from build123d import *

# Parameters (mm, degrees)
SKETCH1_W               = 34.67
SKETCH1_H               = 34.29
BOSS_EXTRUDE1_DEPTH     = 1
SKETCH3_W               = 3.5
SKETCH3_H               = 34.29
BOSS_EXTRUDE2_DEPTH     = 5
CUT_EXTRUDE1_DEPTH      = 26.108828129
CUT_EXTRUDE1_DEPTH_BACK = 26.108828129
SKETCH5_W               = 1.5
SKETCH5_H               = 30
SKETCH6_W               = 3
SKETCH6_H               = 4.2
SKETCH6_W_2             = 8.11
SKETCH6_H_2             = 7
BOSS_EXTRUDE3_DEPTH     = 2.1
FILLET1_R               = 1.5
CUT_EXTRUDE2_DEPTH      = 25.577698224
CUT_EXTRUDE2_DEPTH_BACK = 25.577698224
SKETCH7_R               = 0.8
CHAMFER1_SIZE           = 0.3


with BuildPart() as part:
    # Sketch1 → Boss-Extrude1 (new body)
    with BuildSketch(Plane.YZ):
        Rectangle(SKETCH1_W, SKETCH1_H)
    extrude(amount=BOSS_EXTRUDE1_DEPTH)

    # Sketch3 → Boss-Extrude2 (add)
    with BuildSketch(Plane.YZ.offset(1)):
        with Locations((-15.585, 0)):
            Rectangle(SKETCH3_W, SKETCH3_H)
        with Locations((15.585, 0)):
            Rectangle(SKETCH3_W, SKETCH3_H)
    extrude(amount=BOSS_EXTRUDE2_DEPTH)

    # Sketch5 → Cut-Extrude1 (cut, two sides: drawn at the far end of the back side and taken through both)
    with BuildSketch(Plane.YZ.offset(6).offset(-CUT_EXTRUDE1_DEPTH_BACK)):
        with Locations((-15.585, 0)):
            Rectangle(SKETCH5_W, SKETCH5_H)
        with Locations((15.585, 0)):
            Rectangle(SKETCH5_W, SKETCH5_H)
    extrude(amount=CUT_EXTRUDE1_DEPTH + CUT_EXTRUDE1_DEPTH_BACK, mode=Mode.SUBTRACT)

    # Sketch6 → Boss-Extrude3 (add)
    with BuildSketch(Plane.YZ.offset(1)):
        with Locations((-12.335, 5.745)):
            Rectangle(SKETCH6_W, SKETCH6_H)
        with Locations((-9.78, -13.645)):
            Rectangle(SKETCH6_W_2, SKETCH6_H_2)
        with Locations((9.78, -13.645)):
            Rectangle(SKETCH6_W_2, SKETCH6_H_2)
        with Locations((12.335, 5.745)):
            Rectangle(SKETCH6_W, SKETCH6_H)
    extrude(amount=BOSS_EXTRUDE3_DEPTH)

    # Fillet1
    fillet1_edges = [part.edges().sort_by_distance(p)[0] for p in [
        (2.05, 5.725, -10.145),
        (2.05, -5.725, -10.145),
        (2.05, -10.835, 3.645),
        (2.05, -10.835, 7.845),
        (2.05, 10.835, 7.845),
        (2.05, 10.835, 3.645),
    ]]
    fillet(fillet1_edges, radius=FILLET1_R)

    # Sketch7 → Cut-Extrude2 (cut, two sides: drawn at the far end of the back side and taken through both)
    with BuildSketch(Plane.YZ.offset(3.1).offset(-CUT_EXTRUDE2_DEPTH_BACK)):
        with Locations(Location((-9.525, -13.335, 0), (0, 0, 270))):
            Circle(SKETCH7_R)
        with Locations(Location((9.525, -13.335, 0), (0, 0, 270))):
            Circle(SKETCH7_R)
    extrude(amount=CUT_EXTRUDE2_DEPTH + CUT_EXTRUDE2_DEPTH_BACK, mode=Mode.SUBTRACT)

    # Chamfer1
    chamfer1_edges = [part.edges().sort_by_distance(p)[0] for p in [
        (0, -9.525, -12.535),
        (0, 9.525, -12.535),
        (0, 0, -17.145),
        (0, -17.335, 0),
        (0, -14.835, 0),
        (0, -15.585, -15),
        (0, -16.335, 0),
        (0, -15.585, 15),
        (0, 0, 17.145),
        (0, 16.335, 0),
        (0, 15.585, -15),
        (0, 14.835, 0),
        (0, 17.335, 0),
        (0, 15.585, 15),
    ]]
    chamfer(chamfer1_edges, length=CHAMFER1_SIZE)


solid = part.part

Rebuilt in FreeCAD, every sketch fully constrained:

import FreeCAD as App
import Part
import Sketcher


def edges_at(feature, points):
    """Names of the edges that pass closest to the given points."""
    edges = feature.Shape.Edges
    near = lambda p: min(range(len(edges)), key=lambda i: edges[i].distToShape(Part.Vertex(*p))[0])
    return sorted({f"Edge{near(p) + 1}" for p in points})

doc = App.newDocument("Part")
body = doc.addObject("PartDesign::Body", "Body")

# Sketch on YZ plane
sketch1 = body.newObject("Sketcher::SketchObject", "Sketch")
sketch1.AttachmentSupport = (doc.getObject("YZ_Plane"), [""])
sketch1.MapMode = "FlatFace"
sketch1.addGeometry(Part.LineSegment(App.Vector(-17, 17, 0), App.Vector(-17, -17, 0)), False)
sketch1.addGeometry(Part.LineSegment(App.Vector(-17, -17, 0), App.Vector(17, -17, 0)), False)
sketch1.addGeometry(Part.LineSegment(App.Vector(17, -17, 0), App.Vector(17, 17, 0)), False)
sketch1.addGeometry(Part.LineSegment(App.Vector(17, 17, 0), App.Vector(-17, 17, 0)), False)
sketch1.addConstraint(Sketcher.Constraint("Coincident", 0, 2, 1, 1))
sketch1.addConstraint(Sketcher.Constraint("Coincident", 1, 2, 2, 1))
sketch1.addConstraint(Sketcher.Constraint("Coincident", 2, 2, 3, 1))
sketch1.addConstraint(Sketcher.Constraint("Coincident", 3, 2, 0, 1))
sketch1.addConstraint(Sketcher.Constraint("Vertical", 0))
sketch1.addConstraint(Sketcher.Constraint("Horizontal", 1))
sketch1.addConstraint(Sketcher.Constraint("Vertical", 2))
sketch1.addConstraint(Sketcher.Constraint("Horizontal", 3))
sketch1.addConstraint(Sketcher.Constraint("Symmetric", 0, 2, 2, 2, -1, 1))
sketch1.addConstraint(Sketcher.Constraint("DistanceX", 1, 1, 1, 2, 34.67))
sketch1.addConstraint(Sketcher.Constraint("DistanceY", 0, 2, 0, 1, 34.29))
pad1 = body.newObject("PartDesign::Pad", "Pad")
pad1.Profile = sketch1
pad1.Length = 1

# Sketch on YZ plane
sketch2 = body.newObject("Sketcher::SketchObject", "Sketch001")
sketch2.AttachmentSupport = (doc.getObject("YZ_Plane"), [""])
sketch2.MapMode = "FlatFace"
sketch2.AttachmentOffset = App.Placement(App.Vector(0, 0, 1), App.Rotation())
sketch2.addGeometry(Part.LineSegment(App.Vector(-17.3, 17.1, 0), App.Vector(-17.3, -17.1, 0)), False)
sketch2.addGeometry(Part.LineSegment(App.Vector(-17.3, -17.1, 0), App.Vector(-13.8, -17.1, 0)), False)
sketch2.addGeometry(Part.LineSegment(App.Vector(-13.8, -17.1, 0), App.Vector(-13.8, 17.1, 0)), False)
sketch2.addGeometry(Part.LineSegment(App.Vector(-13.8, 17.1, 0), App.Vector(-17.3, 17.1, 0)), False)
sketch2.addGeometry(Part.LineSegment(App.Vector(13.8, 17.1, 0), App.Vector(13.8, -17.1, 0)), False)
sketch2.addGeometry(Part.LineSegment(App.Vector(13.8, -17.1, 0), App.Vector(17.3, -17.1, 0)), False)
sketch2.addGeometry(Part.LineSegment(App.Vector(17.3, -17.1, 0), App.Vector(17.3, 17.1, 0)), False)
sketch2.addGeometry(Part.LineSegment(App.Vector(17.3, 17.1, 0), App.Vector(13.8, 17.1, 0)), False)
sketch2.addConstraint(Sketcher.Constraint("Coincident", 0, 2, 1, 1))
sketch2.addConstraint(Sketcher.Constraint("Coincident", 1, 2, 2, 1))
sketch2.addConstraint(Sketcher.Constraint("Coincident", 2, 2, 3, 1))
sketch2.addConstraint(Sketcher.Constraint("Coincident", 3, 2, 0, 1))
sketch2.addConstraint(Sketcher.Constraint("Coincident", 4, 2, 5, 1))
sketch2.addConstraint(Sketcher.Constraint("Coincident", 5, 2, 6, 1))
sketch2.addConstraint(Sketcher.Constraint("Coincident", 6, 2, 7, 1))
sketch2.addConstraint(Sketcher.Constraint("Coincident", 7, 2, 4, 1))
sketch2.addConstraint(Sketcher.Constraint("Vertical", 0))
sketch2.addConstraint(Sketcher.Constraint("Horizontal", 1))
sketch2.addConstraint(Sketcher.Constraint("Vertical", 2))
sketch2.addConstraint(Sketcher.Constraint("Horizontal", 3))
sketch2.addConstraint(Sketcher.Constraint("Vertical", 4))
sketch2.addConstraint(Sketcher.Constraint("Horizontal", 5))
sketch2.addConstraint(Sketcher.Constraint("Vertical", 6))
sketch2.addConstraint(Sketcher.Constraint("Horizontal", 7))
sketch2.addConstraint(Sketcher.Constraint("Symmetric", 2, 2, 4, 2, -1, 1))
sketch2.addConstraint(Sketcher.Constraint("Symmetric", 0, 2, 6, 2, -1, 1))
sketch2.addConstraint(Sketcher.Constraint("Horizontal", 1, 2, 4, 2))
sketch2.addConstraint(Sketcher.Constraint("DistanceX", 1, 1, 1, 2, 3.5))
sketch2.addConstraint(Sketcher.Constraint("DistanceY", 0, 2, 0, 1, 34.29))
sketch2.addConstraint(Sketcher.Constraint("DistanceX", 1, 2, 4, 2, 27.67))
pad2 = body.newObject("PartDesign::Pad", "Pad001")
pad2.Profile = sketch2
pad2.Length = 5

# Sketch on YZ plane
sketch3 = body.newObject("Sketcher::SketchObject", "Sketch002")
sketch3.AttachmentSupport = (doc.getObject("YZ_Plane"), [""])
sketch3.MapMode = "FlatFace"
sketch3.AttachmentOffset = App.Placement(App.Vector(0, 0, 6), App.Rotation())
sketch3.addGeometry(Part.LineSegment(App.Vector(-16.3, 15, 0), App.Vector(-16.3, -15, 0)), False)
sketch3.addGeometry(Part.LineSegment(App.Vector(-16.3, -15, 0), App.Vector(-14.8, -15, 0)), False)
sketch3.addGeometry(Part.LineSegment(App.Vector(-14.8, -15, 0), App.Vector(-14.8, 15, 0)), False)
sketch3.addGeometry(Part.LineSegment(App.Vector(-14.8, 15, 0), App.Vector(-16.3, 15, 0)), False)
sketch3.addGeometry(Part.LineSegment(App.Vector(14.8, 15, 0), App.Vector(14.8, -15, 0)), False)
sketch3.addGeometry(Part.LineSegment(App.Vector(14.8, -15, 0), App.Vector(16.3, -15, 0)), False)
sketch3.addGeometry(Part.LineSegment(App.Vector(16.3, -15, 0), App.Vector(16.3, 15, 0)), False)
sketch3.addGeometry(Part.LineSegment(App.Vector(16.3, 15, 0), App.Vector(14.8, 15, 0)), False)
sketch3.addConstraint(Sketcher.Constraint("Coincident", 0, 2, 1, 1))
sketch3.addConstraint(Sketcher.Constraint("Coincident", 1, 2, 2, 1))
sketch3.addConstraint(Sketcher.Constraint("Coincident", 2, 2, 3, 1))
sketch3.addConstraint(Sketcher.Constraint("Coincident", 3, 2, 0, 1))
sketch3.addConstraint(Sketcher.Constraint("Coincident", 4, 2, 5, 1))
sketch3.addConstraint(Sketcher.Constraint("Coincident", 5, 2, 6, 1))
sketch3.addConstraint(Sketcher.Constraint("Coincident", 6, 2, 7, 1))
sketch3.addConstraint(Sketcher.Constraint("Coincident", 7, 2, 4, 1))
sketch3.addConstraint(Sketcher.Constraint("Vertical", 0))
sketch3.addConstraint(Sketcher.Constraint("Horizontal", 1))
sketch3.addConstraint(Sketcher.Constraint("Vertical", 2))
sketch3.addConstraint(Sketcher.Constraint("Horizontal", 3))
sketch3.addConstraint(Sketcher.Constraint("Vertical", 4))
sketch3.addConstraint(Sketcher.Constraint("Horizontal", 5))
sketch3.addConstraint(Sketcher.Constraint("Vertical", 6))
sketch3.addConstraint(Sketcher.Constraint("Horizontal", 7))
sketch3.addConstraint(Sketcher.Constraint("Symmetric", 2, 2, 4, 2, -1, 1))
sketch3.addConstraint(Sketcher.Constraint("Symmetric", 0, 2, 6, 2, -1, 1))
sketch3.addConstraint(Sketcher.Constraint("Horizontal", 1, 2, 4, 2))
sketch3.addConstraint(Sketcher.Constraint("DistanceY", 0, 2, 0, 1, 30.0))
sketch3.addConstraint(Sketcher.Constraint("DistanceX", 1, 1, 1, 2, 1.5))
sketch3.addConstraint(Sketcher.Constraint("DistanceX", 1, 2, 4, 2, 29.67))
pocket1 = body.newObject("PartDesign::Pocket", "Pocket")
pocket1.Profile = sketch3
pocket1.Type = "ThroughAll"
pocket1.Midplane = True

# Sketch on YZ plane
sketch4 = body.newObject("Sketcher::SketchObject", "Sketch003")
sketch4.AttachmentSupport = (doc.getObject("YZ_Plane"), [""])
sketch4.MapMode = "FlatFace"
sketch4.AttachmentOffset = App.Placement(App.Vector(0, 0, 1), App.Rotation())
sketch4.addGeometry(Part.LineSegment(App.Vector(-13.8, 7.8, 0), App.Vector(-13.8, 3.6, 0)), False)
sketch4.addGeometry(Part.LineSegment(App.Vector(-13.8, 3.6, 0), App.Vector(-10.8, 3.6, 0)), False)
sketch4.addGeometry(Part.LineSegment(App.Vector(-10.8, 3.6, 0), App.Vector(-10.8, 7.8, 0)), False)
sketch4.addGeometry(Part.LineSegment(App.Vector(-10.8, 7.8, 0), App.Vector(-13.8, 7.8, 0)), False)
sketch4.addGeometry(Part.LineSegment(App.Vector(-13.8, -10.1, 0), App.Vector(-13.8, -17.1, 0)), False)
sketch4.addGeometry(Part.LineSegment(App.Vector(-13.8, -17.1, 0), App.Vector(-5.7, -17.1, 0)), False)
sketch4.addGeometry(Part.LineSegment(App.Vector(-5.7, -17.1, 0), App.Vector(-5.7, -10.1, 0)), False)
sketch4.addGeometry(Part.LineSegment(App.Vector(-5.7, -10.1, 0), App.Vector(-13.8, -10.1, 0)), False)
sketch4.addGeometry(Part.LineSegment(App.Vector(5.7, -10.1, 0), App.Vector(5.7, -17.1, 0)), False)
sketch4.addGeometry(Part.LineSegment(App.Vector(5.7, -17.1, 0), App.Vector(13.8, -17.1, 0)), False)
sketch4.addGeometry(Part.LineSegment(App.Vector(13.8, -17.1, 0), App.Vector(13.8, -10.1, 0)), False)
sketch4.addGeometry(Part.LineSegment(App.Vector(13.8, -10.1, 0), App.Vector(5.7, -10.1, 0)), False)
sketch4.addGeometry(Part.LineSegment(App.Vector(10.8, 7.8, 0), App.Vector(10.8, 3.6, 0)), False)
sketch4.addGeometry(Part.LineSegment(App.Vector(10.8, 3.6, 0), App.Vector(13.8, 3.6, 0)), False)
sketch4.addGeometry(Part.LineSegment(App.Vector(13.8, 3.6, 0), App.Vector(13.8, 7.8, 0)), False)
sketch4.addGeometry(Part.LineSegment(App.Vector(13.8, 7.8, 0), App.Vector(10.8, 7.8, 0)), False)
sketch4.addConstraint(Sketcher.Constraint("Coincident", 0, 2, 1, 1))
sketch4.addConstraint(Sketcher.Constraint("Coincident", 1, 2, 2, 1))
sketch4.addConstraint(Sketcher.Constraint("Coincident", 2, 2, 3, 1))
sketch4.addConstraint(Sketcher.Constraint("Coincident", 3, 2, 0, 1))
sketch4.addConstraint(Sketcher.Constraint("Coincident", 4, 2, 5, 1))
sketch4.addConstraint(Sketcher.Constraint("Coincident", 5, 2, 6, 1))
sketch4.addConstraint(Sketcher.Constraint("Coincident", 6, 2, 7, 1))
sketch4.addConstraint(Sketcher.Constraint("Coincident", 7, 2, 4, 1))
sketch4.addConstraint(Sketcher.Constraint("Coincident", 8, 2, 9, 1))
sketch4.addConstraint(Sketcher.Constraint("Coincident", 9, 2, 10, 1))
sketch4.addConstraint(Sketcher.Constraint("Coincident", 10, 2, 11, 1))
sketch4.addConstraint(Sketcher.Constraint("Coincident", 11, 2, 8, 1))
sketch4.addConstraint(Sketcher.Constraint("Coincident", 12, 2, 13, 1))
sketch4.addConstraint(Sketcher.Constraint("Coincident", 13, 2, 14, 1))
sketch4.addConstraint(Sketcher.Constraint("Coincident", 14, 2, 15, 1))
sketch4.addConstraint(Sketcher.Constraint("Coincident", 15, 2, 12, 1))
sketch4.addConstraint(Sketcher.Constraint("Vertical", 0))
sketch4.addConstraint(Sketcher.Constraint("Horizontal", 1))
sketch4.addConstraint(Sketcher.Constraint("Vertical", 2))
sketch4.addConstraint(Sketcher.Constraint("Horizontal", 3))
sketch4.addConstraint(Sketcher.Constraint("Vertical", 4))
sketch4.addConstraint(Sketcher.Constraint("Horizontal", 5))
sketch4.addConstraint(Sketcher.Constraint("Vertical", 6))
sketch4.addConstraint(Sketcher.Constraint("Horizontal", 7))
sketch4.addConstraint(Sketcher.Constraint("Vertical", 8))
sketch4.addConstraint(Sketcher.Constraint("Horizontal", 9))
sketch4.addConstraint(Sketcher.Constraint("Vertical", 10))
sketch4.addConstraint(Sketcher.Constraint("Horizontal", 11))
sketch4.addConstraint(Sketcher.Constraint("Vertical", 12))
sketch4.addConstraint(Sketcher.Constraint("Horizontal", 13))
sketch4.addConstraint(Sketcher.Constraint("Vertical", 14))
sketch4.addConstraint(Sketcher.Constraint("Horizontal", 15))
sketch4.addConstraint(Sketcher.Constraint("Symmetric", 5, 2, 8, 2, -2))
sketch4.addConstraint(Sketcher.Constraint("Symmetric", 7, 2, 10, 2, -2))
sketch4.addConstraint(Sketcher.Constraint("Symmetric", 1, 2, 12, 2, -2))
sketch4.addConstraint(Sketcher.Constraint("Symmetric", 3, 2, 14, 2, -2))
sketch4.addConstraint(Sketcher.Constraint("Vertical", 3, 2, 4, 2))
sketch4.addConstraint(Sketcher.Constraint("DistanceX", 1, 1, 1, 2, 3.0))
sketch4.addConstraint(Sketcher.Constraint("DistanceY", 4, 2, 4, 1, 7.0))
sketch4.addConstraint(Sketcher.Constraint("DistanceY", 0, 2, 0, 1, 4.2))
sketch4.addConstraint(Sketcher.Constraint("DistanceX", 5, 1, 5, 2, 8.11))
sketch4.addConstraint(Sketcher.Constraint("DistanceY", 4, 2, 0, 2, 20.79))
sketch4.addConstraint(Sketcher.Constraint("DistanceX", 5, 2, 8, 2, 11.45))
sketch4.addConstraint(Sketcher.Constraint("DistanceY", -1, 1, 0, 2, 3.645))
pad3 = body.newObject("PartDesign::Pad", "Pad002")
pad3.Profile = sketch4
pad3.Length = 2.1
doc.recompute()

fillet = body.newObject("PartDesign::Fillet", "Fillet")
fillet.Base = (pad3, edges_at(pad3, [
    (2.05, 5.725, -10.145),
    (2.05, -5.725, -10.145),
    (2.05, -10.835, 3.645),
    (2.05, -10.835, 7.845),
    (2.05, 10.835, 7.845),
    (2.05, 10.835, 3.645),
]))
fillet.Radius = 1.5

# Sketch on YZ plane
sketch5 = body.newObject("Sketcher::SketchObject", "Sketch004")
sketch5.AttachmentSupport = (doc.getObject("YZ_Plane"), [""])
sketch5.MapMode = "FlatFace"
sketch5.AttachmentOffset = App.Placement(App.Vector(0, 0, 3.1), App.Rotation())
sketch5.addGeometry(Part.Circle(App.Vector(-9.5, -13.3, 0), App.Vector(0, 0, 1), 0.8), False)
sketch5.addGeometry(Part.Circle(App.Vector(9.5, -13.3, 0), App.Vector(0, 0, 1), 0.8), False)
sketch5.addConstraint(Sketcher.Constraint("Equal", 0, 1))
sketch5.addConstraint(Sketcher.Constraint("Symmetric", 0, 3, 1, 3, -2))
sketch5.addConstraint(Sketcher.Constraint("Diameter", 0, 1.6))
sketch5.addConstraint(Sketcher.Constraint("DistanceX", 0, 3, 1, 3, 19.05))
sketch5.addConstraint(Sketcher.Constraint("DistanceY", 0, 3, -1, 1, 13.335))
pocket2 = body.newObject("PartDesign::Pocket", "Pocket001")
pocket2.Profile = sketch5
pocket2.Type = "ThroughAll"
pocket2.Midplane = True
doc.recompute()

chamfer = body.newObject("PartDesign::Chamfer", "Chamfer")
chamfer.Base = (pocket2, edges_at(pocket2, [
    (0, -9.525, -12.535),
    (0, 9.525, -12.535),
    (0, 0, -17.145),
    (0, -17.335, 0),
    (0, -14.835, 0),
    (0, -15.585, -15),
    (0, -16.335, 0),
    (0, -15.585, 15),
    (0, 0, 17.145),
    (0, 16.335, 0),
    (0, 15.585, -15),
    (0, 14.835, 0),
    (0, 17.335, 0),
    (0, 15.585, 15),
]))
chamfer.Size = 0.3

doc.recompute()
